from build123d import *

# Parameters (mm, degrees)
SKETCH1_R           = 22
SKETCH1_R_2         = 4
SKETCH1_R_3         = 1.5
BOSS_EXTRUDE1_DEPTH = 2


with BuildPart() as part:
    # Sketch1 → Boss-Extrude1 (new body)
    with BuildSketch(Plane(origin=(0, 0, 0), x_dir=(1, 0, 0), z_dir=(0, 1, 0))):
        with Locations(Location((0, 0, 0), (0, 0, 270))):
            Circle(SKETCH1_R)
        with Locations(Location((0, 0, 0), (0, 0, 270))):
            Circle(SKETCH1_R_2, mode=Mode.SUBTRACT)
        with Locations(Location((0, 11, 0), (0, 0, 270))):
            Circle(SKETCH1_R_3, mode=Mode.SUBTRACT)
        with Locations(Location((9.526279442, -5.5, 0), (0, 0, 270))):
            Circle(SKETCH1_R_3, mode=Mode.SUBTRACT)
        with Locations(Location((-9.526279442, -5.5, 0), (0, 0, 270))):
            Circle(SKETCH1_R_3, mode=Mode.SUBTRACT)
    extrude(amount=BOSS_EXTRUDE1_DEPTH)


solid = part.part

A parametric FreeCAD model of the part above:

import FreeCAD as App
import Part
import Sketcher

V = App.Vector
Q = App.Units.Quantity

doc = App.newDocument("Part")
body = doc.addObject("PartDesign::Body", "Body")

sketch1 = body.newObject("Sketcher::SketchObject", "Sketch")
sketch1.AttachmentSupport = (doc.getObject("XZ_Plane"), [""])
sketch1.MapMode = "FlatFace"
sketch1.addGeometry([
    Part.Circle(V(0, 0, 0), V(0, 0, 1), 22),
    Part.Circle(V(0, -11, 0), V(0, 0, 1), 1.5),
    Part.Circle(V(-9.526279, 5.5, 0), V(0, 0, 1), 1.5),
    Part.Circle(V(0, 0, 0), V(0, 0, 1), 4),
    Part.Circle(V(9.526279, 5.5, 0), V(0, 0, 1), 1.5),
], False)
sketch1.addConstraint([
    Sketcher.Constraint("Coincident", 0, 3, -1, 1),
    Sketcher.Constraint("Coincident", 3, 3, -1, 1),
    Sketcher.Constraint("Equal", 1, 2),
    Sketcher.Constraint("Equal", 2, 4),
    Sketcher.Constraint("Symmetric", 2, 3, 4, 3, -2),
    Sketcher.Constraint("PointOnObject", 1, 3, -2),
    Sketcher.Constraint("Diameter", 0, Q("44 mm")),
    Sketcher.Constraint("Diameter", 1, Q("3 mm")),
    Sketcher.Constraint("Diameter", 3, Q("8 mm")),
    Sketcher.Constraint("DistanceY", 1, 3, -1, 1, Q("11 mm")),
    Sketcher.Constraint("DistanceY", -1, 1, 2, 3, Q("5.5 mm")),
    Sketcher.Constraint("DistanceX", 2, 3, -1, 1, Q("9.526279 mm")),
])
pad1 = body.newObject("PartDesign::Pad", "Pad")
pad1.Profile = sketch1
pad1.Length = 2
pad1.Reversed = True

doc.recompute()
